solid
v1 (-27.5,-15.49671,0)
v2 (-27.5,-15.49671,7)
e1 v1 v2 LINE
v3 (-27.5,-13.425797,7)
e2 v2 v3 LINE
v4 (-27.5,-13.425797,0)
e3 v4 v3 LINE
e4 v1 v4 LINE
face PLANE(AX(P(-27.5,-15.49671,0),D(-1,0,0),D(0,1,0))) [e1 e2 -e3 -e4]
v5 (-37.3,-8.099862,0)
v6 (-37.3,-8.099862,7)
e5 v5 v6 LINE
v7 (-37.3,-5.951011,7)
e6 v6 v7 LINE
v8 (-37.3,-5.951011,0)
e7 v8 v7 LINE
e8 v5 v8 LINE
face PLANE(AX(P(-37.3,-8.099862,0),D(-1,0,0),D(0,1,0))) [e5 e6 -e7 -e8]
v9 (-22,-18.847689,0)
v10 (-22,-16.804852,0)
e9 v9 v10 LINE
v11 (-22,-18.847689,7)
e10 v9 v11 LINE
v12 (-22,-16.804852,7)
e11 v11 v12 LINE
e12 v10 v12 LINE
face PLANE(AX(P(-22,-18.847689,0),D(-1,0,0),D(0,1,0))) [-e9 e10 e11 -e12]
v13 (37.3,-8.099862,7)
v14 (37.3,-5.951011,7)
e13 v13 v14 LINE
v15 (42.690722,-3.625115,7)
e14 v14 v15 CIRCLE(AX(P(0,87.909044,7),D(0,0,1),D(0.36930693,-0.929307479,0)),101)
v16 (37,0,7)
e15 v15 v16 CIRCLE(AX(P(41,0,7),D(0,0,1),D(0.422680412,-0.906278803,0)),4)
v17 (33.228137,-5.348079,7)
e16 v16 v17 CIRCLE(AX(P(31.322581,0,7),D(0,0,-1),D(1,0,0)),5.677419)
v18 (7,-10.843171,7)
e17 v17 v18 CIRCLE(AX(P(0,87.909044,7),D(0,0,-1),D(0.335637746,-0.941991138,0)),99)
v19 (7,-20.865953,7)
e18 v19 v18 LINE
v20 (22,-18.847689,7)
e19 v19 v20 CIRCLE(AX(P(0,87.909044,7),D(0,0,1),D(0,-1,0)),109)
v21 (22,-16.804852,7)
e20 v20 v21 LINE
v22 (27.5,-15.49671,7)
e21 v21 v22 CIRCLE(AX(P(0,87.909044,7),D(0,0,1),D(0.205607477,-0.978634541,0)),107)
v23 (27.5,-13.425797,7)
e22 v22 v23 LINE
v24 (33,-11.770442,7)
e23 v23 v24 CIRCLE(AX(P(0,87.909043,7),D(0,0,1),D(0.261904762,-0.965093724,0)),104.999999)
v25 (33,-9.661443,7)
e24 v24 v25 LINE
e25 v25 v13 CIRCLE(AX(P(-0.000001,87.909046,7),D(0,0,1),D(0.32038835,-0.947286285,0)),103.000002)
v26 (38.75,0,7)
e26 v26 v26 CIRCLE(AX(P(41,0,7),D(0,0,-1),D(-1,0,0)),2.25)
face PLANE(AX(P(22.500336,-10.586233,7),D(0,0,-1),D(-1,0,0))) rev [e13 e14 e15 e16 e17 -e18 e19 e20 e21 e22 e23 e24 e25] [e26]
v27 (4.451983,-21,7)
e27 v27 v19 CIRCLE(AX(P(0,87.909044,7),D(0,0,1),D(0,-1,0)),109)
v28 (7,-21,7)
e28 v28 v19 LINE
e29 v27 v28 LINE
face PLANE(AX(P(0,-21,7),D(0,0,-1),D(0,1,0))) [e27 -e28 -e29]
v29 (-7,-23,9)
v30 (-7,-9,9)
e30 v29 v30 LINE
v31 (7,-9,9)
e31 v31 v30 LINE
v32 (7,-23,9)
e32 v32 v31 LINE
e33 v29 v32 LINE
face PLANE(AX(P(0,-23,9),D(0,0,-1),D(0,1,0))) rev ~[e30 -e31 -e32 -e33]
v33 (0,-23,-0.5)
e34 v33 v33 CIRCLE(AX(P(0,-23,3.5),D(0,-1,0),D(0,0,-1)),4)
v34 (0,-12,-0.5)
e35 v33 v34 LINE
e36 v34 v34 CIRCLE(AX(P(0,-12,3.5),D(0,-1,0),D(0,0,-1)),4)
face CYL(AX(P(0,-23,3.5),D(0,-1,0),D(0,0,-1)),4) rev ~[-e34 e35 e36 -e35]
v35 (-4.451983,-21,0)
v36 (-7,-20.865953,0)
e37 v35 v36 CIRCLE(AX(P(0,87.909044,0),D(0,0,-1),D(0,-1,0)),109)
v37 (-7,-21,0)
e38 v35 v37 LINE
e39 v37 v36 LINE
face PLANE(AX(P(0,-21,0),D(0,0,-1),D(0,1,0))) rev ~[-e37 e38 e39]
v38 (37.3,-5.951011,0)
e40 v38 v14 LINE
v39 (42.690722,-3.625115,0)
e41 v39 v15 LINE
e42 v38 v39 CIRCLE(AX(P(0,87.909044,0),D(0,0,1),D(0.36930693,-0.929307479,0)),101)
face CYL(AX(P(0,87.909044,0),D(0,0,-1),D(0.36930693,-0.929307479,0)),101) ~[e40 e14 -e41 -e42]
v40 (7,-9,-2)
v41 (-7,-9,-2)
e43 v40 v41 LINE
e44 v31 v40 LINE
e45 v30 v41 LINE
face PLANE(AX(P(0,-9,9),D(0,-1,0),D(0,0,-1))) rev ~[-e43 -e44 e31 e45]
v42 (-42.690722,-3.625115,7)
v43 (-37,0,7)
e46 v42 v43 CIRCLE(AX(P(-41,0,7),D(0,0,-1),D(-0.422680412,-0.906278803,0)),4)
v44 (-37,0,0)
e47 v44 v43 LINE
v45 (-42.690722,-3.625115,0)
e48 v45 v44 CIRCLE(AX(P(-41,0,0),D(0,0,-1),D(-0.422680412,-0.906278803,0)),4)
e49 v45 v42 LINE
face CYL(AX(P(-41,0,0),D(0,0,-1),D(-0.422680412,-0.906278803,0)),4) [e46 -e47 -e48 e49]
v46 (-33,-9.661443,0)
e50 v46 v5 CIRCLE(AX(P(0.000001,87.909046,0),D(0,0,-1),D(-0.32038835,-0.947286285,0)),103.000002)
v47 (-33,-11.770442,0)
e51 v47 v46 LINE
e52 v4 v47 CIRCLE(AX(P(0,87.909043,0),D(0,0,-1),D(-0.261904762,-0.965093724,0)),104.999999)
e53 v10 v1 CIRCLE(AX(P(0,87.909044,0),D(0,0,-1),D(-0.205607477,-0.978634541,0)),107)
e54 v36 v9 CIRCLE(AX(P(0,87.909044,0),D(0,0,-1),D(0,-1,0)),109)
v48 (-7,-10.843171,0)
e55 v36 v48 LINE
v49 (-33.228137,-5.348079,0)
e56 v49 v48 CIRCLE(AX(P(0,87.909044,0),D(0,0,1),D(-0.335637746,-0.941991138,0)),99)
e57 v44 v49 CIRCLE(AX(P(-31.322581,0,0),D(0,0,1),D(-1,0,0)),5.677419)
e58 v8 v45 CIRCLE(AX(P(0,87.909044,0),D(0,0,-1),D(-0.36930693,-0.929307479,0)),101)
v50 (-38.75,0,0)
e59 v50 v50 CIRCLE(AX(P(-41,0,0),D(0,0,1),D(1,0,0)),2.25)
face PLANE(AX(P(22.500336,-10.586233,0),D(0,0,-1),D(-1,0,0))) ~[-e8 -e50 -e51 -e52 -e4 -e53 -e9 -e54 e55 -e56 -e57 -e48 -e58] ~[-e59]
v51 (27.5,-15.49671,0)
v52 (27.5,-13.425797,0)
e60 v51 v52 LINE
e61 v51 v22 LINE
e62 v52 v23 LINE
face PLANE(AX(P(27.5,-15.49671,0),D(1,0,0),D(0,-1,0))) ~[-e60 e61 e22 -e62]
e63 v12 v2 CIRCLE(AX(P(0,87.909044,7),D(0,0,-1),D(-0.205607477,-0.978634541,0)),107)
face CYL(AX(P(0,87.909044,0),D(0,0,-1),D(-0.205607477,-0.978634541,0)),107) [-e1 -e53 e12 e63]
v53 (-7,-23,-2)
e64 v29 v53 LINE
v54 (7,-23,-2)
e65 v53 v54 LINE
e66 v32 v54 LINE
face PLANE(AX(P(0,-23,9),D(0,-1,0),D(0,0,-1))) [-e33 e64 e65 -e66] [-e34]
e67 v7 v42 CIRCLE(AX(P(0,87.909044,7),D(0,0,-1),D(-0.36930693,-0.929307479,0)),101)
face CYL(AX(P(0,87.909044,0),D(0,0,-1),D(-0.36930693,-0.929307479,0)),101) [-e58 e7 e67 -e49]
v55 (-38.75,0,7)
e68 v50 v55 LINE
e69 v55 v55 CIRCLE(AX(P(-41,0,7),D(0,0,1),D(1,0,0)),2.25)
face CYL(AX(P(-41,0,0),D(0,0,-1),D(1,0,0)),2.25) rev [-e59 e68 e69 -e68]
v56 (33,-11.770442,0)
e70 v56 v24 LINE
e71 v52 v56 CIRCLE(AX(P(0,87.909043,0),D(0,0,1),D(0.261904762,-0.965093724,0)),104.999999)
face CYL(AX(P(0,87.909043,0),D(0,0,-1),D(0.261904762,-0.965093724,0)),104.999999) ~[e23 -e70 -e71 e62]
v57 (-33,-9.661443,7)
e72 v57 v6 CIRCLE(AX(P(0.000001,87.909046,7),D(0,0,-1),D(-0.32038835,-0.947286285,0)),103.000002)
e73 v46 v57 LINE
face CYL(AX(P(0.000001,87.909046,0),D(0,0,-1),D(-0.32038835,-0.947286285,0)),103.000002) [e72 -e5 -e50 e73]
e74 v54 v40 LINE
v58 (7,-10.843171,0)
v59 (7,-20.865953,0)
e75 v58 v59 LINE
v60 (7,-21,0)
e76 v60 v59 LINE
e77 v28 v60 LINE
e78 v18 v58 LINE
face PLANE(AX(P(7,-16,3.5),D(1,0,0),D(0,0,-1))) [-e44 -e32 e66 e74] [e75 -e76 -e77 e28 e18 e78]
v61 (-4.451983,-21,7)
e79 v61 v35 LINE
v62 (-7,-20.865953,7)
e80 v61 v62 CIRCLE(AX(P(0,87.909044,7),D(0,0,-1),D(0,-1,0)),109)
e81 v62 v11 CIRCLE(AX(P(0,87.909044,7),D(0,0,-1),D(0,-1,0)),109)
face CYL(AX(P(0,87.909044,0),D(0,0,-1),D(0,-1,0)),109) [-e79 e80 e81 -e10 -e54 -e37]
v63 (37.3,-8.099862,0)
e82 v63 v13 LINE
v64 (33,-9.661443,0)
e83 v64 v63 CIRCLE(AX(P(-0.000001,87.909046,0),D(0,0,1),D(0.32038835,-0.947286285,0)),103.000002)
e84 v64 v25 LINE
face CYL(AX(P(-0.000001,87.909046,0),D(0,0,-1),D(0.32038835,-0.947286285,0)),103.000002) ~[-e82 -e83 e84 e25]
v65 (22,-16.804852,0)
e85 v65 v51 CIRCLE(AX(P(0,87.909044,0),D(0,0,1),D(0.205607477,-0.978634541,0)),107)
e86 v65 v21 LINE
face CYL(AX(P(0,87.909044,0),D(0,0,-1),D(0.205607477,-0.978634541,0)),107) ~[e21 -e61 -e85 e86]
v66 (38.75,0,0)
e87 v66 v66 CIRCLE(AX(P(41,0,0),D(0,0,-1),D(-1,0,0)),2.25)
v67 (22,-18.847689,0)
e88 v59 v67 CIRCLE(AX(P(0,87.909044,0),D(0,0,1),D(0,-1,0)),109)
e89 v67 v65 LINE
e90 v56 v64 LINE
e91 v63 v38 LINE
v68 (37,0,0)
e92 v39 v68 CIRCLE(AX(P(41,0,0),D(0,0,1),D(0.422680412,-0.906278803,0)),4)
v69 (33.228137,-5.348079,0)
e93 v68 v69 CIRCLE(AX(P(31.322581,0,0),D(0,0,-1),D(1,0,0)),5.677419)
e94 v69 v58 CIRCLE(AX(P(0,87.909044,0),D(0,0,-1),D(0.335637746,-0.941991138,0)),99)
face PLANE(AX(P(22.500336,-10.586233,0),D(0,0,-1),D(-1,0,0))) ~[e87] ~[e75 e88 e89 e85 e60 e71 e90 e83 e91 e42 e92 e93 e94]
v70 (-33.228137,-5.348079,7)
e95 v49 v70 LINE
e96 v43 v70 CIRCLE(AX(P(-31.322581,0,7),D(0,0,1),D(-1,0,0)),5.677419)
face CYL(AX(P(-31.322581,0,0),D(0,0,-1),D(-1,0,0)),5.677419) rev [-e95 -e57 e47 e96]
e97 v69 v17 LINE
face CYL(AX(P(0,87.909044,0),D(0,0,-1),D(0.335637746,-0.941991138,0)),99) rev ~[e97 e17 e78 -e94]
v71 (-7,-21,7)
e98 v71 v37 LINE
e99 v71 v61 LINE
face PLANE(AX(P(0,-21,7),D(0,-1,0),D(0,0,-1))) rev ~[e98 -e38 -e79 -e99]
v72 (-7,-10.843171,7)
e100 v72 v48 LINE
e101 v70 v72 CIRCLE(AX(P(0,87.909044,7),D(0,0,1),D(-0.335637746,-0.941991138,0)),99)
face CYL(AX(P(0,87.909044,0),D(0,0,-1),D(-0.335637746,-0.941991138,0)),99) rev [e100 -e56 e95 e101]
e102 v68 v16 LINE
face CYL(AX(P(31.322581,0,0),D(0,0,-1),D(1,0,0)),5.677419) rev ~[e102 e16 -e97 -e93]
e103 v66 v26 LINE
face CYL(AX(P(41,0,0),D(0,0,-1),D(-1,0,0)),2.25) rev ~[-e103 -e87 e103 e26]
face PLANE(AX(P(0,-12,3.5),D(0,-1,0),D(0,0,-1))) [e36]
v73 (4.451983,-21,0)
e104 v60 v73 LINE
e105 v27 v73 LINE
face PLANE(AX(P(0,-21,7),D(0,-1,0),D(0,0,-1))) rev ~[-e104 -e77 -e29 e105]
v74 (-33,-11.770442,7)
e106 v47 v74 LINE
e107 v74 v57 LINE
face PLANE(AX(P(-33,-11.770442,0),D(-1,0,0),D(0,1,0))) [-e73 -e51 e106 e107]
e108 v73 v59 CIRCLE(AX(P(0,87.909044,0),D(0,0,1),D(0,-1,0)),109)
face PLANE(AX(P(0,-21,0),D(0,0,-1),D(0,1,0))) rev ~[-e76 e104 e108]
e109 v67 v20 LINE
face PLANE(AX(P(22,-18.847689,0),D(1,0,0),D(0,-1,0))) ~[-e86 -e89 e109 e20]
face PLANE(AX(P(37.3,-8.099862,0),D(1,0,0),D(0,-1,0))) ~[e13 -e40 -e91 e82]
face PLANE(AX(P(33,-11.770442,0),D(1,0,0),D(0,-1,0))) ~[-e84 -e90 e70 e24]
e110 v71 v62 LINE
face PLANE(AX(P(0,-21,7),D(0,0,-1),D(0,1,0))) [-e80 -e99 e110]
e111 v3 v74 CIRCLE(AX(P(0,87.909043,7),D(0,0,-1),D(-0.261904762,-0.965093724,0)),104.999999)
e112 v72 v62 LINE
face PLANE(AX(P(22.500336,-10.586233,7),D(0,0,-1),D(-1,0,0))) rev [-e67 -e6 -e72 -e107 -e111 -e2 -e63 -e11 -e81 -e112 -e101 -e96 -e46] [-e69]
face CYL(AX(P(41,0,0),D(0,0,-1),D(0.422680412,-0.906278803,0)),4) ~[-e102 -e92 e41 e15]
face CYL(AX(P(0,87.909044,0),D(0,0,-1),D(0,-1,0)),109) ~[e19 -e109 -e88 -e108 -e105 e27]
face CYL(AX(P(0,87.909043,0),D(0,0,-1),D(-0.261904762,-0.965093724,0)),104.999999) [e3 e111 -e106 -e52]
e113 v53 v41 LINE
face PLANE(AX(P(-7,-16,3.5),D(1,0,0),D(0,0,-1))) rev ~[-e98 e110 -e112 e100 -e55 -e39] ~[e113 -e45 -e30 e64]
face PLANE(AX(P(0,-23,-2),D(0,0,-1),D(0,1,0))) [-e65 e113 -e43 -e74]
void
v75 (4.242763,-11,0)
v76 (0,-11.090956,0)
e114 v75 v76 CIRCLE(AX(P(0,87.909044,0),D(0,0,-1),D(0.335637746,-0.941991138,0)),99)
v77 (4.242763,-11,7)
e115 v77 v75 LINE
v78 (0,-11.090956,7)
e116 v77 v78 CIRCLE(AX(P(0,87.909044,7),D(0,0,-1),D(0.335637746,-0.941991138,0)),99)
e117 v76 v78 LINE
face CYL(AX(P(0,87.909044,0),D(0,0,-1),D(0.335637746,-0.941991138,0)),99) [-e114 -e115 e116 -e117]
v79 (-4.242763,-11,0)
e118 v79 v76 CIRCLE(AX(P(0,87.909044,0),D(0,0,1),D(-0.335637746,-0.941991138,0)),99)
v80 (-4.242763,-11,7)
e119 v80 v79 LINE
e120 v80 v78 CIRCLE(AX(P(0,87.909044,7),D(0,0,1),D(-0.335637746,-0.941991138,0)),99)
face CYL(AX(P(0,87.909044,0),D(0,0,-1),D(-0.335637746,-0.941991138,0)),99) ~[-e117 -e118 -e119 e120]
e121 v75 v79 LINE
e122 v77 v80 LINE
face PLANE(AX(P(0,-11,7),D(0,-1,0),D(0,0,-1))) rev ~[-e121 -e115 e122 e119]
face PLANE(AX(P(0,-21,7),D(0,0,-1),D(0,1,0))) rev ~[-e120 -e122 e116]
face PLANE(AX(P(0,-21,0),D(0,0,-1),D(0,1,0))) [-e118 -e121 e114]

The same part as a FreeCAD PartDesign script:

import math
import FreeCAD as App
import Part
import Sketcher
from FreeCAD import Vector
Q = App.Units.Quantity

doc = App.newDocument("Part")
params = doc.addObject("Spreadsheet::Sheet", "Params")
for row, (alias, value) in enumerate([
    ("sketch1_radius", "99 mm"),
    ("sketch1_radius2", "4 mm"),
    ("sketch1_radius3", "101 mm"),
    ("sketch1_radius4", "103.000002 mm"),
    ("sketch1_radius5", "104.999999 mm"),
    ("pad1_length", "7 mm"),
    ("sketch2_width", "14 mm"),
    ("sketch2_width2", "10 mm"),
    ("sketch2_height", "11 mm"),
    ("sketch2_height2", "7 mm"),
    ("pad2_length", "14 mm"),
    ("sketch3_diameter", "8 mm"),
    ("pocket1_length", "11 mm"),
], start=1):
    params.set(f"A{row}", alias)
    params.set(f"B{row}", "=" + value)
    params.setAlias(f"B{row}", alias)

body = doc.addObject("PartDesign::Body", "Body")

sketch1 = body.newObject("Sketcher::SketchObject", "Sketch")
sketch1.AttachmentSupport = (doc.getObject("XY_Plane"), [""])
sketch1.MapMode = "FlatFace"
sketch1.addGeometry(Part.LineSegment(Vector(0, -21.1, 0), Vector(0, -11.1, 0)), False)
sketch1.addGeometry(Part.ArcOfCircle(Part.Circle(Vector(0, 87.9, 0), Vector(0, 0, 1), 99), math.radians(-109.61), math.radians(-90)), False)
sketch1.addGeometry(Part.ArcOfCircle(Part.Circle(Vector(-31.3, 0, 0), Vector(0, 0, 1), 5.7), math.radians(-180), math.radians(-110)), False)
sketch1.addGeometry(Part.ArcOfCircle(Part.Circle(Vector(-41, 0, 0), Vector(0, 0, 1), 4), math.radians(0), math.radians(245)), False)
sketch1.addGeometry(Part.ArcOfCircle(Part.Circle(Vector(0, 87.9, 0), Vector(0, 0, 1), 101), math.radians(-115), math.radians(-111.67)), False)
sketch1.addGeometry(Part.LineSegment(Vector(-37.3, -6, 0), Vector(-37.3, -8.1, 0)), False)
sketch1.addGeometry(Part.ArcOfCircle(Part.Circle(Vector(0, 87.9, 0), Vector(0, 0, 1), 103), math.radians(-111.23), math.radians(-108.69)), False)
sketch1.addGeometry(Part.LineSegment(Vector(-33, -9.7, 0), Vector(-33, -11.8, 0)), False)
sketch1.addGeometry(Part.ArcOfCircle(Part.Circle(Vector(0, 87.9, 0), Vector(0, 0, 1), 105), math.radians(-108.32), math.radians(-105.18)), False)
sketch1.addGeometry(Part.LineSegment(Vector(-27.5, -13.4, 0), Vector(-27.5, -15.5, 0)), False)
sketch1.addGeometry(Part.ArcOfCircle(Part.Circle(Vector(0, 87.9, 0), Vector(0, 0, 1), 107), math.radians(-104.89), math.radians(-101.87)), False)
sketch1.addGeometry(Part.LineSegment(Vector(-22, -16.8, 0), Vector(-22, -18.8, 0)), False)
sketch1.addGeometry(Part.ArcOfCircle(Part.Circle(Vector(0, 87.9, 0), Vector(0, 0, 1), 109), math.radians(-101.64), math.radians(-90)), False)
sketch1.addGeometry(Part.Circle(Vector(-41, 0, 0), Vector(0, 0, 1), 2.2), False)
sketch1.addConstraint(Sketcher.Constraint("Coincident", 0, 2, 1, 2))
sketch1.addConstraint(Sketcher.Constraint("Tangent", 1, 1, 2, 2))
sketch1.addConstraint(Sketcher.Constraint("Tangent", 2, 1, 3, 1))
sketch1.addConstraint(Sketcher.Constraint("Tangent", 3, 2, 4, 1))
sketch1.addConstraint(Sketcher.Constraint("Coincident", 4, 2, 5, 1))
sketch1.addConstraint(Sketcher.Constraint("Coincident", 5, 2, 6, 1))
sketch1.addConstraint(Sketcher.Constraint("Coincident", 6, 2, 7, 1))
sketch1.addConstraint(Sketcher.Constraint("Coincident", 7, 2, 8, 1))
sketch1.addConstraint(Sketcher.Constraint("Coincident", 8, 2, 9, 1))
sketch1.addConstraint(Sketcher.Constraint("Coincident", 9, 2, 10, 1))
sketch1.addConstraint(Sketcher.Constraint("Coincident", 10, 2, 11, 1))
sketch1.addConstraint(Sketcher.Constraint("Coincident", 11, 2, 12, 1))
sketch1.addConstraint(Sketcher.Constraint("Coincident", 12, 2, 0, 1))
sketch1.addConstraint(Sketcher.Constraint("Vertical", 0))
sketch1.addConstraint(Sketcher.Constraint("Vertical", 5))
sketch1.addConstraint(Sketcher.Constraint("Vertical", 7))
sketch1.addConstraint(Sketcher.Constraint("Vertical", 9))
sketch1.addConstraint(Sketcher.Constraint("Vertical", 11))
sketch1.addConstraint(Sketcher.Constraint("Coincident", 4, 3, 1, 3))
sketch1.addConstraint(Sketcher.Constraint("Coincident", 6, 3, 1, 3))
sketch1.addConstraint(Sketcher.Constraint("Coincident", 8, 3, 1, 3))
sketch1.addConstraint(Sketcher.Constraint("Coincident", 10, 3, 1, 3))
sketch1.addConstraint(Sketcher.Constraint("Coincident", 12, 3, 1, 3))
sketch1.addConstraint(Sketcher.Constraint("Coincident", 13, 3, 3, 3))
sketch1.addConstraint(Sketcher.Constraint("PointOnObject", 1, 3, -2))
sketch1.addConstraint(Sketcher.Constraint("PointOnObject", 2, 3, -1))
sketch1.addConstraint(Sketcher.Constraint("PointOnObject", 3, 3, -1))
sketch1.addConstraint(Sketcher.Constraint("PointOnObject", 0, 2, -2))
sketch1.addConstraint(Sketcher.Constraint("Radius", 1, Q("99 mm")))
sketch1.addConstraint(Sketcher.Constraint("Radius", 3, Q("4 mm")))
sketch1.addConstraint(Sketcher.Constraint("Radius", 4, Q("101 mm")))
sketch1.addConstraint(Sketcher.Constraint("Radius", 6, Q("103.000002 mm")))
sketch1.addConstraint(Sketcher.Constraint("Radius", 8, Q("104.999999 mm")))
sketch1.addConstraint(Sketcher.Constraint("Radius", 10, Q("107 mm")))
sketch1.addConstraint(Sketcher.Constraint("Radius", 12, Q("109 mm")))
sketch1.addConstraint(Sketcher.Constraint("Diameter", 13, Q("4.5 mm")))
sketch1.addConstraint(Sketcher.Constraint("DistanceX", 3, 3, -1, 1, Q("41 mm")))
sketch1.addConstraint(Sketcher.Constraint("DistanceX", 6, 2, -1, 1, Q("33 mm")))
sketch1.addConstraint(Sketcher.Constraint("DistanceX", 10, 2, -1, 1, Q("22 mm")))
sketch1.addConstraint(Sketcher.Constraint("DistanceX", 4, 2, -1, 1, Q("37.3 mm")))
sketch1.addConstraint(Sketcher.Constraint("DistanceX", 8, 2, -1, 1, Q("27.5 mm")))
sketch1.setExpression("Constraints[28]", "Params.sketch1_radius")
sketch1.setExpression("Constraints[29]", "Params.sketch1_radius2")
sketch1.setExpression("Constraints[30]", "Params.sketch1_radius3")
sketch1.setExpression("Constraints[31]", "Params.sketch1_radius4")
sketch1.setExpression("Constraints[32]", "Params.sketch1_radius5")
pad1 = body.newObject("PartDesign::Pad", "Pad")
pad1.Profile = sketch1
pad1.setExpression("Length", "Params.pad1_length")
body2 = doc.addObject("PartDesign::Body", "Body001")
doc.recompute()

body2.BaseFeature = body
doc.recompute()

mirroring = doc.addObject("Part::Mirroring", "Mirroring")
mirroring.Source = body
mirroring.Base = Vector(0, -11.090956, 7)
mirroring.Normal = Vector(1, 0, 0)
body3 = doc.addObject("PartDesign::Body", "Body002")
body3.BaseFeature = mirroring
boolean = body2.newObject("PartDesign::Boolean", "Boolean")
boolean.Type = "Fuse"
boolean.addObjects([body3])
doc.recompute()

sketch2 = body2.newObject("Sketcher::SketchObject", "Sketch001")
sketch2.AttachmentSupport = (doc.getObject("YZ_Plane001"), [""])
sketch2.MapMode = "FlatFace"
sketch2.addGeometry(Part.LineSegment(Vector(-9, 9, 0), Vector(-23, 9, 0)), False)
sketch2.addGeometry(Part.LineSegment(Vector(-23, 9, 0), Vector(-23, -2, 0)), False)
sketch2.addGeometry(Part.LineSegment(Vector(-23, -2, 0), Vector(-9, -2, 0)), False)
sketch2.addGeometry(Part.LineSegment(Vector(-9, -2, 0), Vector(-9, 9, 0)), False)
sketch2.addGeometry(Part.LineSegment(Vector(-21, 0, 0), Vector(-21, 7, 0)), False)
sketch2.addGeometry(Part.LineSegment(Vector(-21, 7, 0), Vector(-11, 7, 0)), False)
sketch2.addGeometry(Part.LineSegment(Vector(-11, 7, 0), Vector(-11, 0, 0)), False)
sketch2.addGeometry(Part.LineSegment(Vector(-11, 0, 0), Vector(-21, 0, 0)), False)
sketch2.addConstraint(Sketcher.Constraint("Coincident", 0, 2, 1, 1))
sketch2.addConstraint(Sketcher.Constraint("Coincident", 1, 2, 2, 1))
sketch2.addConstraint(Sketcher.Constraint("Coincident", 2, 2, 3, 1))
sketch2.addConstraint(Sketcher.Constraint("Coincident", 3, 2, 0, 1))
sketch2.addConstraint(Sketcher.Constraint("Coincident", 4, 2, 5, 1))
sketch2.addConstraint(Sketcher.Constraint("Coincident", 5, 2, 6, 1))
sketch2.addConstraint(Sketcher.Constraint("Coincident", 6, 2, 7, 1))
sketch2.addConstraint(Sketcher.Constraint("Coincident", 7, 2, 4, 1))
sketch2.addConstraint(Sketcher.Constraint("Horizontal", 0))
sketch2.addConstraint(Sketcher.Constraint("Vertical", 1))
sketch2.addConstraint(Sketcher.Constraint("Horizontal", 2))
sketch2.addConstraint(Sketcher.Constraint("Vertical", 3))
sketch2.addConstraint(Sketcher.Constraint("Vertical", 4))
sketch2.addConstraint(Sketcher.Constraint("Horizontal", 5))
sketch2.addConstraint(Sketcher.Constraint("Vertical", 6))
sketch2.addConstraint(Sketcher.Constraint("Horizontal", 7))
sketch2.addConstraint(Sketcher.Constraint("PointOnObject", 6, 2, -1))
sketch2.addConstraint(Sketcher.Constraint("DistanceX", 0, 2, 0, 1, Q("14 mm")))
sketch2.addConstraint(Sketcher.Constraint("DistanceX", 5, 1, 5, 2, Q("10 mm")))
sketch2.addConstraint(Sketcher.Constraint("DistanceY", 1, 2, 1, 1, Q("11 mm")))
sketch2.addConstraint(Sketcher.Constraint("DistanceY", 4, 1, 4, 2, Q("7 mm")))
sketch2.addConstraint(Sketcher.Constraint("DistanceX", 0, 2, -1, 1, Q("23 mm")))
sketch2.addConstraint(Sketcher.Constraint("DistanceY", -1, 1, 0, 2, Q("9 mm")))
sketch2.addConstraint(Sketcher.Constraint("DistanceX", 4, 2, -1, 1, Q("21 mm")))
sketch2.setExpression("Constraints[17]", "Params.sketch2_width")
sketch2.setExpression("Constraints[18]", "Params.sketch2_width2")
sketch2.setExpression("Constraints[19]", "Params.sketch2_height")
sketch2.setExpression("Constraints[20]", "Params.sketch2_height2")
pad2 = body2.newObject("PartDesign::Pad", "Pad001")
pad2.Profile = sketch2
pad2.setExpression("Length", "Params.pad2_length")
pad2.Midplane = True

sketch3 = body2.newObject("Sketcher::SketchObject", "Sketch002")
sketch3.AttachmentSupport = (doc.getObject("XZ_Plane001"), [""])
sketch3.MapMode = "FlatFace"
sketch3.AttachmentOffset = App.Placement(Vector(0, 0, 23), App.Rotation())
sketch3.addGeometry(Part.Circle(Vector(0, 3.5, 0), Vector(0, 0, 1), 4), False)
sketch3.addConstraint(Sketcher.Constraint("PointOnObject", 0, 3, -2))
sketch3.addConstraint(Sketcher.Constraint("Diameter", 0, Q("8 mm")))
sketch3.addConstraint(Sketcher.Constraint("DistanceY", -1, 1, 0, 3, Q("3.5 mm")))
sketch3.setExpression("Constraints[1]", "Params.sketch3_diameter")
pocket1 = body2.newObject("PartDesign::Pocket", "Pocket")
pocket1.Profile = sketch3
pocket1.setExpression("Length", "Params.pocket1_length")
mirroring.Visibility = False

doc.recompute()
